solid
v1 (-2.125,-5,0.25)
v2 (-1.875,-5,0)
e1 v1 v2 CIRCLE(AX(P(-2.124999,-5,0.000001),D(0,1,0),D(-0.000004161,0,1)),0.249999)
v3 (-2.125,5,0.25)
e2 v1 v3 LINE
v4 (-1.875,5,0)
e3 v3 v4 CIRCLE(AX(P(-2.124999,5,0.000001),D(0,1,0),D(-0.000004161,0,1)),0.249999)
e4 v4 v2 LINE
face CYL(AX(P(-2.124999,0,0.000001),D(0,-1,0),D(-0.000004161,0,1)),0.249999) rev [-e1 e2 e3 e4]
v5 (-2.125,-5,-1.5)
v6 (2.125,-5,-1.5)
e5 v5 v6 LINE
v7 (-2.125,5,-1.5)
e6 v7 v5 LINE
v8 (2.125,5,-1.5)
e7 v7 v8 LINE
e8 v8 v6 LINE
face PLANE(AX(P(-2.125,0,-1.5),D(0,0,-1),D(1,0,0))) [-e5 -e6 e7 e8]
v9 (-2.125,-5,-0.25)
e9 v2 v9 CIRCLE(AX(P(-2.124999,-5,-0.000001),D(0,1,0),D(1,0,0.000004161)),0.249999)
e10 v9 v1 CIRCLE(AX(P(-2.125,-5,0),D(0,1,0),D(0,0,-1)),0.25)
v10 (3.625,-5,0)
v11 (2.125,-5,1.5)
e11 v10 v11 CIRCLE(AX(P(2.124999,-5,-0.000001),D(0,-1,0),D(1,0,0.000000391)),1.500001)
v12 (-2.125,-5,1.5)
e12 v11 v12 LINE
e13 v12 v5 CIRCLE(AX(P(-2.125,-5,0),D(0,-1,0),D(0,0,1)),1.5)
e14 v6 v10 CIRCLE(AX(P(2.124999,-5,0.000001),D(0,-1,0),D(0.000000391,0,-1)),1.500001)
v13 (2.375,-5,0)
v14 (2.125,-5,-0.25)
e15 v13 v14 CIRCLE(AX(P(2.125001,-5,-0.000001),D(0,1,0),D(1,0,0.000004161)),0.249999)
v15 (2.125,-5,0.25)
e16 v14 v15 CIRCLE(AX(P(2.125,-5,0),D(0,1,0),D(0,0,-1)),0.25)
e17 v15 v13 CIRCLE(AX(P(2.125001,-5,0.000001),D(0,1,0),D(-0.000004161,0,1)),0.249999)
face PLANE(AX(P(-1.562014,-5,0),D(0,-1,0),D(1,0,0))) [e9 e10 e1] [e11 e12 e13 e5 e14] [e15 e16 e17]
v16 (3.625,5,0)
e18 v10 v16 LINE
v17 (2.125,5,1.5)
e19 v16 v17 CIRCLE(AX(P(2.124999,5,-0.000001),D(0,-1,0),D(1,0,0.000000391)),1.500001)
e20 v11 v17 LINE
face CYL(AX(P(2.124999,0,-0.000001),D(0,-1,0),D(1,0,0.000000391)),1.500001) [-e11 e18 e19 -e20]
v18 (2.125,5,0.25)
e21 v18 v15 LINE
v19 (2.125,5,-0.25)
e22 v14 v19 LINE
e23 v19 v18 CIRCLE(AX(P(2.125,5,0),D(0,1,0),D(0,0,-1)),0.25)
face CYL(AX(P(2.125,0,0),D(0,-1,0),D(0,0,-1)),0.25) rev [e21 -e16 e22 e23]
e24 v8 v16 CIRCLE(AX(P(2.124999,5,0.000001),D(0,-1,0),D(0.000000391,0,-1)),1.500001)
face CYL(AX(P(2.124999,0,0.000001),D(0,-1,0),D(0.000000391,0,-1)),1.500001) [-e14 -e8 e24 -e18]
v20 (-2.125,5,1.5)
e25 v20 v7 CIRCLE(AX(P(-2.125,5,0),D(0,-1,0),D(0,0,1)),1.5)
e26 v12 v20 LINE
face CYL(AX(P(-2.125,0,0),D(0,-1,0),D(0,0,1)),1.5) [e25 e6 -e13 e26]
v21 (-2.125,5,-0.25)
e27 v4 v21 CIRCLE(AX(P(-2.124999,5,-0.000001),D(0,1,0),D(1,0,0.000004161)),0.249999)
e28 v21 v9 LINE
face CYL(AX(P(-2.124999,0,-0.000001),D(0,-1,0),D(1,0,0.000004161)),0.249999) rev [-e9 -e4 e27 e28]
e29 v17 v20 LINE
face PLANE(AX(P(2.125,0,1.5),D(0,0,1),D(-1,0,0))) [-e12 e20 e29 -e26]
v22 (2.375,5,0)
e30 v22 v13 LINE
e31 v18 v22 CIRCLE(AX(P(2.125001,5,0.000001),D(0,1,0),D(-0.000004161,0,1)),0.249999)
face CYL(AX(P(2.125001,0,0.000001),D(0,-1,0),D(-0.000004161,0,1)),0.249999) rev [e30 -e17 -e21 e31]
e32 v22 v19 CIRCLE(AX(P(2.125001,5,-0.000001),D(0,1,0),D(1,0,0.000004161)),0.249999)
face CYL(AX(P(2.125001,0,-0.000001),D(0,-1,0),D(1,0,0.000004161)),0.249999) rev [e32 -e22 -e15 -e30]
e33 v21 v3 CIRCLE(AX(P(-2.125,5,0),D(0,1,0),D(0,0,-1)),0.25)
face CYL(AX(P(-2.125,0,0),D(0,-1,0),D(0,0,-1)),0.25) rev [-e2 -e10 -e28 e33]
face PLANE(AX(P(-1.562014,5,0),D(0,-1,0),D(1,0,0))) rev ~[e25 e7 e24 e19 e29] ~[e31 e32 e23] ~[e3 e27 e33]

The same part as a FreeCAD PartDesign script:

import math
import FreeCAD as App
import Part
import Sketcher

V = App.Vector
Q = App.Units.Quantity

doc = App.newDocument("Part")
body = doc.addObject("PartDesign::Body", "Body")

# Sketch on XZ plane
sketch1 = doc.addObject("Sketcher::SketchObject", "Sketch")
body.addObject(sketch1)
sketch1.AttachmentSupport = (doc.XZ_Plane, [""])
sketch1.MapMode = "FlatFace"
sketch1.addGeometry([
    Part.ArcOfCircle(Part.Circle(V(-2.12, 0, 0), V(0, 0, 1), 1.5), math.radians(90), math.radians(270)),  # 0
    Part.LineSegment(V(-2.12, -1.5, 0), V(2.12, -1.5, 0)),  # 1
    Part.ArcOfCircle(Part.Circle(V(2.12, 0, 0), V(0, 0, 1), 1.5), math.radians(-90), math.radians(0)),  # 2
    Part.ArcOfCircle(Part.Circle(V(2.12, 0, 0), V(0, 0, 1), 1.5), math.radians(0), math.radians(90)),  # 3
    Part.LineSegment(V(2.12, 1.5, 0), V(-2.12, 1.5, 0)),  # 4
    Part.ArcOfCircle(Part.Circle(V(-2.12, 0, 0), V(0, 0, 1), 0.25), math.radians(0), math.radians(90)),  # 5
    Part.ArcOfCircle(Part.Circle(V(-2.12, 0, 0), V(0, 0, 1), 0.25), math.radians(-90), math.radians(0)),  # 6
    Part.ArcOfCircle(Part.Circle(V(-2.12, 0, 0), V(0, 0, 1), 0.25), math.radians(90), math.radians(270)),  # 7
    Part.ArcOfCircle(Part.Circle(V(2.12, 0, 0), V(0, 0, 1), 0.25), math.radians(90), math.radians(270)),  # 8
    Part.ArcOfCircle(Part.Circle(V(2.13, 0, 0), V(0, 0, 1), 0.25), math.radians(0), math.radians(90)),  # 9
    Part.ArcOfCircle(Part.Circle(V(2.13, 0, 0), V(0, 0, 1), 0.25), math.radians(-90), math.radians(0)),  # 10
], False)
sketch1.addConstraint([
    Sketcher.Constraint("Tangent", 0, 2, 1, 1),
    Sketcher.Constraint("Tangent", 1, 2, 2, 1),
    Sketcher.Constraint("Tangent", 2, 2, 3, 1),
    Sketcher.Constraint("Tangent", 3, 2, 4, 1),
    Sketcher.Constraint("Tangent", 4, 2, 0, 1),
    Sketcher.Constraint("Coincident", 5, 1, 6, 2),
    Sketcher.Constraint("Coincident", 6, 1, 7, 2),
    Sketcher.Constraint("Coincident", 7, 1, 5, 2),
    Sketcher.Constraint("Coincident", 8, 1, 9, 2),
    Sketcher.Constraint("Coincident", 9, 1, 10, 2),
    Sketcher.Constraint("Coincident", 10, 1, 8, 2),
    Sketcher.Constraint("Horizontal", 1),
    Sketcher.Constraint("Horizontal", 4),
    Sketcher.Constraint("Coincident", 5, 3, 0, 3),
    Sketcher.Constraint("Coincident", 6, 3, 0, 3),
    Sketcher.Constraint("Coincident", 8, 3, 2, 3),
    Sketcher.Constraint("Coincident", 9, 3, 2, 3),
    Sketcher.Constraint("Equal", 0, 2),
    Sketcher.Constraint("Equal", 7, 8),
    Sketcher.Constraint("Equal", 9, 10),
    Sketcher.Constraint("Symmetric", 0, 3, 2, 3, -1, 1),
    Sketcher.Constraint("PointOnObject", 2, 2, -1),
    Sketcher.Constraint("PointOnObject", 5, 1, -1),
    Sketcher.Constraint("PointOnObject", 9, 1, -1),
    Sketcher.Constraint("Vertical", 7, 3, 0, 2),
    Sketcher.Constraint("Vertical", 4, 2, 6, 1),
    Sketcher.Constraint("Vertical", 6, 1, 7, 1),
    Sketcher.Constraint("Vertical", 3, 2, 8, 1),
    Sketcher.Constraint("Vertical", 8, 1, 10, 1),
    Sketcher.Constraint("Radius", 0, Q("1.5 mm")),
    Sketcher.Constraint("Radius", 5, Q("0.249999 mm")),
    Sketcher.Constraint("DistanceX", 1, 1, 1, 2, Q("4.25 mm")),
])
pad1 = doc.addObject("PartDesign::Pad", "Pad")
body.addObject(pad1)
pad1.Profile = sketch1
pad1.Length = 10
pad1.Midplane = True

doc.recompute()
